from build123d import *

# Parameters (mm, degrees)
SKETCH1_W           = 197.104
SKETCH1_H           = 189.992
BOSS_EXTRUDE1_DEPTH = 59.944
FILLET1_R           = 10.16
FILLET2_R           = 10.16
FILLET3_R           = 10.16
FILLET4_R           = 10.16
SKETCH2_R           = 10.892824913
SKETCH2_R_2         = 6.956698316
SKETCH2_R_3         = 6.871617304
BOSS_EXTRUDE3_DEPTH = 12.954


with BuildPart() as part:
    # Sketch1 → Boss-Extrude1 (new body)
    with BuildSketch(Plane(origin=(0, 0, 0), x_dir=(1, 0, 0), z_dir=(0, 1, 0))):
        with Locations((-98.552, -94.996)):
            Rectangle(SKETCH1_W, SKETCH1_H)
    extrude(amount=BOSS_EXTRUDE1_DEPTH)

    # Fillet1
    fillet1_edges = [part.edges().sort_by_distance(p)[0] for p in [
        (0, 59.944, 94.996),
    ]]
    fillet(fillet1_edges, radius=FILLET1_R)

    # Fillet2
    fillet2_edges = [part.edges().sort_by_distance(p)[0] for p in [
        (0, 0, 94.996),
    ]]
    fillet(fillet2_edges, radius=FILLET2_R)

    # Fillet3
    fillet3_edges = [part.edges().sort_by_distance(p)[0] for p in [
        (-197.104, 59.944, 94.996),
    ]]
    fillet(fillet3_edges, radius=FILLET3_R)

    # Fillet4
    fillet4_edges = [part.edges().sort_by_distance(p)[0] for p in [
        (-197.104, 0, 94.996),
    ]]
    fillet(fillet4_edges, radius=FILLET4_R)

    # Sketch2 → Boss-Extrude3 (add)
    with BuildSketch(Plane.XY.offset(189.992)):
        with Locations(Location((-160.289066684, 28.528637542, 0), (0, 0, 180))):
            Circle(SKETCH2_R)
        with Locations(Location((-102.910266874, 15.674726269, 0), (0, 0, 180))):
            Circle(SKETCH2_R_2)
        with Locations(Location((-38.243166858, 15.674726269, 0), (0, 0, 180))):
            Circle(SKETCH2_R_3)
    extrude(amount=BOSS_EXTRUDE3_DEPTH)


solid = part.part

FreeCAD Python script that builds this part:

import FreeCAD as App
import Part
import Sketcher
from FreeCAD import Vector
Q = App.Units.Quantity


def edges_at(feature, points):
    """Names of the edges that pass closest to the given points."""
    edges = feature.Shape.Edges
    near = lambda p: min(range(len(edges)), key=lambda i: edges[i].distToShape(Part.Vertex(*p))[0])
    return sorted({f"Edge{near(p) + 1}" for p in points})

doc = App.newDocument("Part")
body = doc.addObject("PartDesign::Body", "Body")

# Sketch on XZ plane
sketch1 = doc.addObject("Sketcher::SketchObject", "Sketch")
body.addObject(sketch1)
sketch1.AttachmentSupport = (doc.XZ_Plane, [""])
sketch1.MapMode = "FlatFace"
sketch1.addGeometry([
    Part.LineSegment(Vector(-197, 0, 0), Vector(-197, 190, 0)),
    Part.LineSegment(Vector(-197, 190, 0), Vector(0, 190, 0)),
    Part.LineSegment(Vector(0, 190, 0), Vector(0, 0, 0)),
    Part.LineSegment(Vector(0, 0, 0), Vector(-197, 0, 0)),
], False)
sketch1.addConstraint([
    Sketcher.Constraint("Coincident", 0, 2, 1, 1),
    Sketcher.Constraint("Coincident", 1, 2, 2, 1),
    Sketcher.Constraint("Coincident", 2, 2, 3, 1),
    Sketcher.Constraint("Coincident", 3, 2, 0, 1),
    Sketcher.Constraint("Vertical", 0),
    Sketcher.Constraint("Horizontal", 1),
    Sketcher.Constraint("Vertical", 2),
    Sketcher.Constraint("Horizontal", 3),
    Sketcher.Constraint("Coincident", 2, 2, -1, 1),
    Sketcher.Constraint("DistanceX", 1, 1, 1, 2, Q("7.76 in")),
    Sketcher.Constraint("DistanceY", 0, 1, 0, 2, Q("7.48 in")),
])
pad1 = doc.addObject("PartDesign::Pad", "Pad")
body.addObject(pad1)
pad1.Profile = sketch1
pad1.Length = Q("2.36 in")
pad1.Reversed = True
doc.recompute()

fillet = doc.addObject("PartDesign::Fillet", "Fillet")
body.addObject(fillet)
fillet.Base = (pad1, edges_at(pad1, [(0, 59.944, 94.996)]))
fillet.Radius = Q("0.4 in")
doc.recompute()

fillet2 = doc.addObject("PartDesign::Fillet", "Fillet001")
body.addObject(fillet2)
fillet2.Base = (fillet, edges_at(fillet, [(0, 0, 94.996)]))
fillet2.Radius = Q("0.4 in")
doc.recompute()

fillet3 = doc.addObject("PartDesign::Fillet", "Fillet002")
body.addObject(fillet3)
fillet3.Base = (fillet2, edges_at(fillet2, [(-197.104, 59.944, 94.996)]))
fillet3.Radius = Q("0.4 in")
doc.recompute()

fillet4 = doc.addObject("PartDesign::Fillet", "Fillet003")
body.addObject(fillet4)
fillet4.Base = (fillet3, edges_at(fillet3, [(-197.104, 0, 94.996)]))
fillet4.Radius = Q("0.4 in")

# Sketch on XY plane
sketch2 = doc.addObject("Sketcher::SketchObject", "Sketch001")
body.addObject(sketch2)
sketch2.AttachmentSupport = (doc.XY_Plane, [""])
sketch2.MapMode = "FlatFace"
sketch2.AttachmentOffset = App.Placement(Vector(0, 0, 7.48 * 25.4), App.Rotation())
sketch2.addGeometry([
    Part.Circle(Vector(-160, 29, 0), Vector(0, 0, 1), 11),
    Part.Circle(Vector(-103, 16, 0), Vector(0, 0, 1), 7),
    Part.Circle(Vector(-38, 16, 0), Vector(0, 0, 1), 7),
], False)
sketch2.addConstraint([
    Sketcher.Constraint("Horizontal", 1, 3, 2, 3),
    Sketcher.Constraint("Diameter", 0, Q("21.78565 mm")),
    Sketcher.Constraint("Diameter", 1, Q("13.913397 mm")),
    Sketcher.Constraint("Diameter", 2, Q("13.743235 mm")),
    Sketcher.Constraint("DistanceX", 0, 3, 1, 3, Q("57.3788 mm")),
    Sketcher.Constraint("DistanceX", 1, 3, 2, 3, Q("64.6671 mm")),
    Sketcher.Constraint("DistanceY", 1, 3, 0, 3, Q("12.853911 mm")),
    Sketcher.Constraint("DistanceX", 0, 3, -1, 1, Q("160.289067 mm")),
    Sketcher.Constraint("DistanceY", -1, 1, 0, 3, Q("28.528638 mm")),
])
pad2 = doc.addObject("PartDesign::Pad", "Pad001")
body.addObject(pad2)
pad2.Profile = sketch2
pad2.Length = Q("0.51 in")

doc.recompute()
